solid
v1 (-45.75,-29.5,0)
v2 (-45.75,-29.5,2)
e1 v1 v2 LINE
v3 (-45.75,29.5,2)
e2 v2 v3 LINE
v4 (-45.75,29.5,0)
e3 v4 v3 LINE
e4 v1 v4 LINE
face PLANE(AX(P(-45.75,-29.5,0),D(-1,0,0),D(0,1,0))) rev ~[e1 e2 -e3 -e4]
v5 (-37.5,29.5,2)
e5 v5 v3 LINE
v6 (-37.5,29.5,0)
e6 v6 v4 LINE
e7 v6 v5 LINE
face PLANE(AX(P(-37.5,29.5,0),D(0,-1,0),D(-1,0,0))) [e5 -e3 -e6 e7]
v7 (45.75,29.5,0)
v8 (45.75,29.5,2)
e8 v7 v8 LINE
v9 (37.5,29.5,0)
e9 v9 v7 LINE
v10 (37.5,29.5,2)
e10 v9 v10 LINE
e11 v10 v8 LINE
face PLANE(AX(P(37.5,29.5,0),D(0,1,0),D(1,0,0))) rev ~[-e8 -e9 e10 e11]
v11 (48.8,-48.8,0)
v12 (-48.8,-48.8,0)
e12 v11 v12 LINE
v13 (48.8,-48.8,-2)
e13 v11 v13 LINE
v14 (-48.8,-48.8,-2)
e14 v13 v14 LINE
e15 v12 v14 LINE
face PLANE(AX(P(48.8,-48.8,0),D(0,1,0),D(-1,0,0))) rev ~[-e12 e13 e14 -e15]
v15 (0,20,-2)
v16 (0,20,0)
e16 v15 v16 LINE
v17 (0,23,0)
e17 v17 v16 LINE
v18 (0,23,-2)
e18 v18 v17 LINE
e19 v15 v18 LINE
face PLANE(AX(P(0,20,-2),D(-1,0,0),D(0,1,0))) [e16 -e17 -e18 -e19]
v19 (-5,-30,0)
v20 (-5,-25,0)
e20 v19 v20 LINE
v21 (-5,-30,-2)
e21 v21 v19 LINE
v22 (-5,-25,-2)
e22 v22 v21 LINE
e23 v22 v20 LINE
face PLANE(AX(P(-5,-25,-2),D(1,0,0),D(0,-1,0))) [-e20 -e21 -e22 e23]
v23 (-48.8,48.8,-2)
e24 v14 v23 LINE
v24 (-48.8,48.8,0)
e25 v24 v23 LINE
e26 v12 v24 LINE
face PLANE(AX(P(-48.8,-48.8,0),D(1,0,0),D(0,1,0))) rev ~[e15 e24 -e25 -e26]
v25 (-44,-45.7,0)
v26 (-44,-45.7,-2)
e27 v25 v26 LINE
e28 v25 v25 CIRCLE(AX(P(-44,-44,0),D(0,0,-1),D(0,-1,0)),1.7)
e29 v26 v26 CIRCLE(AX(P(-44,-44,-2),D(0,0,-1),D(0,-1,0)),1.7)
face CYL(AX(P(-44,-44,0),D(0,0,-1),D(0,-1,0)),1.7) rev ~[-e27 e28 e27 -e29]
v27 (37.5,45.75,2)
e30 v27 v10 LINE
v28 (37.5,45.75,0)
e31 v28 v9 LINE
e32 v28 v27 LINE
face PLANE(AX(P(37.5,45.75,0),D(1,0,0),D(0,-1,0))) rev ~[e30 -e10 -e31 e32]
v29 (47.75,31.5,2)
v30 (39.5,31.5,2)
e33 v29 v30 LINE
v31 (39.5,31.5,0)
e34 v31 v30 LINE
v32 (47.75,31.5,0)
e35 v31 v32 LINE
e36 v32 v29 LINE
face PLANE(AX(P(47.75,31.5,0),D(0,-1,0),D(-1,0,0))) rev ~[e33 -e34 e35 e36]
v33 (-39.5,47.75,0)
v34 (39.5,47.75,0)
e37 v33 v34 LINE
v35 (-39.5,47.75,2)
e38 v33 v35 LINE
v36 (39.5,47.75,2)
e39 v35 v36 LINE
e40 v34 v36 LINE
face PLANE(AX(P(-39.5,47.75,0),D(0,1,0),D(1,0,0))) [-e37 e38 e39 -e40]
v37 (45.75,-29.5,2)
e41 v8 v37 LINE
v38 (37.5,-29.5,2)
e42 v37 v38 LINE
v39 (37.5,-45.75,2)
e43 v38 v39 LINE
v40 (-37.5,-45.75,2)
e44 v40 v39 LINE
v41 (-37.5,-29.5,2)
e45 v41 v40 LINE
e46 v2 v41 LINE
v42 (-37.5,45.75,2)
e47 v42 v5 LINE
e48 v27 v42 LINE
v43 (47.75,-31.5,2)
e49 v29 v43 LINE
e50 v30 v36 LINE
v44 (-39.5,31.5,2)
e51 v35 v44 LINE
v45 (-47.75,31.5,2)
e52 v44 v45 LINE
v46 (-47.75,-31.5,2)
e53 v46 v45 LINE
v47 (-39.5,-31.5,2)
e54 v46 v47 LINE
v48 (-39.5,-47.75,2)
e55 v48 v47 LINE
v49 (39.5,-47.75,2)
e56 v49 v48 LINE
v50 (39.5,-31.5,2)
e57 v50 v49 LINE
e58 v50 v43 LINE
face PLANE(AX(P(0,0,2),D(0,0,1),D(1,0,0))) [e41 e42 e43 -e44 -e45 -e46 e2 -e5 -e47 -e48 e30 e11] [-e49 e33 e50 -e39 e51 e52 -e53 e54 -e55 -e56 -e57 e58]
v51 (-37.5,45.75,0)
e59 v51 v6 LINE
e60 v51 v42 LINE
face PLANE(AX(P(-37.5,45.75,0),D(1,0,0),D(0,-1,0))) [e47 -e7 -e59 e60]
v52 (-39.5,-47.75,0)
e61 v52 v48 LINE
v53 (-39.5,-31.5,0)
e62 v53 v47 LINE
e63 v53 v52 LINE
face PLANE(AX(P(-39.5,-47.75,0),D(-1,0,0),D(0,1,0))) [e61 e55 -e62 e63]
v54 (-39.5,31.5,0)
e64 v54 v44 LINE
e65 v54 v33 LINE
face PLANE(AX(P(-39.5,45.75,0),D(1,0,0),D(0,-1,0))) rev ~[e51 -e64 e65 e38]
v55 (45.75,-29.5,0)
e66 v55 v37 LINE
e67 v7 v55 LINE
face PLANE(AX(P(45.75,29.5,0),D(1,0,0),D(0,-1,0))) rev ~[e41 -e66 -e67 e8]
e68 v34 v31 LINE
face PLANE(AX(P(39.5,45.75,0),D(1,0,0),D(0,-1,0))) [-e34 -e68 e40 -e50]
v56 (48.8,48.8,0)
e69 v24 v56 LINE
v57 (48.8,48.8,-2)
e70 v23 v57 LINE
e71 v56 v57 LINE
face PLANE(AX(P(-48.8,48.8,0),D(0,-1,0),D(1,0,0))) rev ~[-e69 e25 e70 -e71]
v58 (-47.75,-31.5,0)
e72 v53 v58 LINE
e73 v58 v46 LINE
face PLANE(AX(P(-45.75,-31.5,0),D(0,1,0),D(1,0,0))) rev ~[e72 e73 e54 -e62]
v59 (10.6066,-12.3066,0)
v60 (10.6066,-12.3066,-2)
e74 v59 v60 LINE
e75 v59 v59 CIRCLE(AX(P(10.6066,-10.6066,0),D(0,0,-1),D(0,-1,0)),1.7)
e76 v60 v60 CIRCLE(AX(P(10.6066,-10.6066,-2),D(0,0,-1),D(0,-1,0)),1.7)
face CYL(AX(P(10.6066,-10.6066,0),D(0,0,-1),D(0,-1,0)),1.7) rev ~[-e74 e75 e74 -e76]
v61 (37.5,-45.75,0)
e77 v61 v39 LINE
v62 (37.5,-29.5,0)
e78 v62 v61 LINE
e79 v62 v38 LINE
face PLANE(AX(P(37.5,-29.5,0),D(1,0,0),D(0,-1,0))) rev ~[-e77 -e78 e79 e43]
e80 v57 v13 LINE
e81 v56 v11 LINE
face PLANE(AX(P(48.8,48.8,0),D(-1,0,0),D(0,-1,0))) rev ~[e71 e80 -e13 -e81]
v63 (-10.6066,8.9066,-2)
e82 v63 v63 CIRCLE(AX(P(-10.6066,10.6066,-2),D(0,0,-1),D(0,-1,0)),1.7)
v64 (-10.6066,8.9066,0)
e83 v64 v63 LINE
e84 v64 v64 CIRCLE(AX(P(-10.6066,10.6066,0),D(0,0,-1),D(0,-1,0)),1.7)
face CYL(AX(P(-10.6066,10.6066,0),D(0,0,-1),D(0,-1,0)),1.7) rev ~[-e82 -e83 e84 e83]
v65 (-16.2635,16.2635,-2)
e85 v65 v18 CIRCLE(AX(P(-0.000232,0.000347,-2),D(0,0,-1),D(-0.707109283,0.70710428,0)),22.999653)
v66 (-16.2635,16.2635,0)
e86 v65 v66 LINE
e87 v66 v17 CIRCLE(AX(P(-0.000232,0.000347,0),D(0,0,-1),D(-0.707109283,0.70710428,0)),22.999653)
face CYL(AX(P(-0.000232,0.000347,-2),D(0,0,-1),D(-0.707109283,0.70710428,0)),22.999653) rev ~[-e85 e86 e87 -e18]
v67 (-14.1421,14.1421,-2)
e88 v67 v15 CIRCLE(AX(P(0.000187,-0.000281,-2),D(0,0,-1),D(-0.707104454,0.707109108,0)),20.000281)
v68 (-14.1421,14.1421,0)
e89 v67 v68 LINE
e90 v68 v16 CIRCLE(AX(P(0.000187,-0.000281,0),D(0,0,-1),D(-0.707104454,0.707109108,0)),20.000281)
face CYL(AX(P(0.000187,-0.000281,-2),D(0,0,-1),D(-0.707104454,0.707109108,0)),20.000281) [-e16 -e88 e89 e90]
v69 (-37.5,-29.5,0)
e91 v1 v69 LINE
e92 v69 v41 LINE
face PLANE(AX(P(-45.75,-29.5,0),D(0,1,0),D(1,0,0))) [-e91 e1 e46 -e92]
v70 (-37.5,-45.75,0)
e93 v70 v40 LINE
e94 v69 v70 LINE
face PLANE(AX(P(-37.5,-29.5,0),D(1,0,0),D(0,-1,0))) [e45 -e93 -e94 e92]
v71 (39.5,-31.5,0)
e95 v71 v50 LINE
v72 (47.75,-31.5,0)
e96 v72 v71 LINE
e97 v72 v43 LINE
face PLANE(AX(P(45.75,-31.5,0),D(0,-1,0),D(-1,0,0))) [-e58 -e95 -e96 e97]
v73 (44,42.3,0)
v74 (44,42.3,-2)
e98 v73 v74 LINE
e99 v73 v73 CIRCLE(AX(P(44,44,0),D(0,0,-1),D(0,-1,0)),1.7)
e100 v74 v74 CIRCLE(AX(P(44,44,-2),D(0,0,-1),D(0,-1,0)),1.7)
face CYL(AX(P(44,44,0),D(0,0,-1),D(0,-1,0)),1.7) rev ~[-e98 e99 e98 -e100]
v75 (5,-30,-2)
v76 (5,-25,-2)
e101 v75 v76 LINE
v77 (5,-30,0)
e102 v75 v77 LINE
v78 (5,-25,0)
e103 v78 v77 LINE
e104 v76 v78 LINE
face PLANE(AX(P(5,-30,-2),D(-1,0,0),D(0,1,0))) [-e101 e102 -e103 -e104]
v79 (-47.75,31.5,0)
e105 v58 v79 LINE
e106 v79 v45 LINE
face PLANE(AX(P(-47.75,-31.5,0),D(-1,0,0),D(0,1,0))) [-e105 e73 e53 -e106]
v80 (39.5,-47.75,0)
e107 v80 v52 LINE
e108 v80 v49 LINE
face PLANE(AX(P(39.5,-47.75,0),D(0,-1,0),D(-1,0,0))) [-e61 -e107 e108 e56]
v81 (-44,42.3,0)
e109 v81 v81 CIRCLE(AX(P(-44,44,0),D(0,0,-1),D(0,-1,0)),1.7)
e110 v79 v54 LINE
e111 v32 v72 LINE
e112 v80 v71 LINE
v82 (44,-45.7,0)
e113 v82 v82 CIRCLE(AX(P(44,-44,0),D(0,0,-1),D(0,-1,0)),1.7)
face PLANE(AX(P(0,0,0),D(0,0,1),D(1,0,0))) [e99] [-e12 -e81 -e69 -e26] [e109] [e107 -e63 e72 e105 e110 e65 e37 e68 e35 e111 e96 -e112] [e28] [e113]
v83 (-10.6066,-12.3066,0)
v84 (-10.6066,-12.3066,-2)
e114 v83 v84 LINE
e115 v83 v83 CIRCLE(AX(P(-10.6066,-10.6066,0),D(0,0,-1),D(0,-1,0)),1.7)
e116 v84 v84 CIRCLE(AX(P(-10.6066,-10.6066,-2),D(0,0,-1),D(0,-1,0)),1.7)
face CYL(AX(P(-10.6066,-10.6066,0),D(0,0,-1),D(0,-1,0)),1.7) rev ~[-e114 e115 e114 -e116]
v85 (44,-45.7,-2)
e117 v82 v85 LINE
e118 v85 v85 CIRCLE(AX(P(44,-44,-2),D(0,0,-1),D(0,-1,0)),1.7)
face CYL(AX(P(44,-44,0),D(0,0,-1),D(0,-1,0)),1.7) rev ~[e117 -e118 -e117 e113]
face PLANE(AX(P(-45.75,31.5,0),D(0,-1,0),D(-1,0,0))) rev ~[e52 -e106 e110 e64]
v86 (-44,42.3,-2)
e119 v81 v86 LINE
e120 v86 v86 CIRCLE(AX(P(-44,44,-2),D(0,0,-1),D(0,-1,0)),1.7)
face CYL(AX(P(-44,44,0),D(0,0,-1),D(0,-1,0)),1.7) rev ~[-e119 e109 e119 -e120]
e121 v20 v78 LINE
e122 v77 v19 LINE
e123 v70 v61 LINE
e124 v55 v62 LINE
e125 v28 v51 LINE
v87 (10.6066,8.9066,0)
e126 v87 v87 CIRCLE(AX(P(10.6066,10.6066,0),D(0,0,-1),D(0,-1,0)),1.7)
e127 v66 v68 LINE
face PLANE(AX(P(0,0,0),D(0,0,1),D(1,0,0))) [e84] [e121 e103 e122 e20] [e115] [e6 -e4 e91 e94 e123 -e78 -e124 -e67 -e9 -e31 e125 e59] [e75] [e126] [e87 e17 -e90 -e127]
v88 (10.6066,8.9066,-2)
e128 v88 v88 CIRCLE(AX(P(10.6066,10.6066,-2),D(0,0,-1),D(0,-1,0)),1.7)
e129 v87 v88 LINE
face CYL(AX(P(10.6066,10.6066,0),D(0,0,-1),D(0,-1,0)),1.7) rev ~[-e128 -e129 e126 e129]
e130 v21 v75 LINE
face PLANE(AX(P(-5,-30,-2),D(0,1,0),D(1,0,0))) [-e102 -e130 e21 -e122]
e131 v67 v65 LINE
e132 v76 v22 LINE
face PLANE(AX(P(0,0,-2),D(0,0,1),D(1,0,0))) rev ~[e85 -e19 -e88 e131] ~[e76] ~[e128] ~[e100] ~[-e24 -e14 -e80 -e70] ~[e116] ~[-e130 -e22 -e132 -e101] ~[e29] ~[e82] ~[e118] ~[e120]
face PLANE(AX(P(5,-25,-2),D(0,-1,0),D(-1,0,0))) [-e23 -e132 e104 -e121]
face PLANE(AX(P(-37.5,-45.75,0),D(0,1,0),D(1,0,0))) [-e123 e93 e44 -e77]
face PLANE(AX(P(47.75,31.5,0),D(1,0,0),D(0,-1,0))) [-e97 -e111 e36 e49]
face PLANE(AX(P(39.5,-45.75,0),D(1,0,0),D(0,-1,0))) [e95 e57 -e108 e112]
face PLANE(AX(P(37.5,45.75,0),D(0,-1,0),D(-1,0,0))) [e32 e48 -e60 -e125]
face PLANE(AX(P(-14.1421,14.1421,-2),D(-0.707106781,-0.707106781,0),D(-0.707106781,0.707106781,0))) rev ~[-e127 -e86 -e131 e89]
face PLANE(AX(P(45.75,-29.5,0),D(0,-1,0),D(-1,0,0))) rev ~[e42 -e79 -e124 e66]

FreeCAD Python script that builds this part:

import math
import FreeCAD as App
import Part
import Sketcher

V = App.Vector
Q = App.Units.Quantity


def add_polygon(sketch, points):
    """Adds a closed chain of lines whose ends are joined by coincident constraints."""
    first, n = sketch.GeometryCount, len(points)
    for a, b in zip(points, points[1:] + points[:1]):
        sketch.addGeometry(Part.LineSegment(App.Vector(*a, 0), App.Vector(*b, 0)), False)
    for i in range(n):
        sketch.addConstraint(Sketcher.Constraint("Coincident", first + i, 2, first + (i + 1) % n, 1))

doc = App.newDocument("Part")
body = doc.addObject("PartDesign::Body", "Body")

# Sketch on XY plane
sketch1 = body.newObject("Sketcher::SketchObject", "Sketch")
sketch1.AttachmentSupport = (doc.getObject("XY_Plane"), [""])
sketch1.MapMode = "FlatFace"
add_polygon(sketch1, [(-48.8, -48.8), (48.8, -48.8), (48.8, 48.8), (-48.8, 48.8)])  # lines 0-3
sketch1.addConstraint([
    Sketcher.Constraint("Horizontal", 0),
    Sketcher.Constraint("Vertical", 1),
    Sketcher.Constraint("Horizontal", 2),
    Sketcher.Constraint("Vertical", 3),
    Sketcher.Constraint("Symmetric", 0, 2, 2, 2, -1, 1),
    Sketcher.Constraint("Equal", 2, 1),
    Sketcher.Constraint("DistanceX", 0, 1, 0, 2, Q("97.6 mm")),
])
pad1 = body.newObject("PartDesign::Pad", "Pad")
pad1.Profile = sketch1
pad1.Length = 2
pad1.Reversed = True

# Sketch on XY plane
sketch2 = body.newObject("Sketcher::SketchObject", "Sketch001")
sketch2.AttachmentSupport = (doc.getObject("XY_Plane"), [""])
sketch2.MapMode = "FlatFace"
sketch2.addGeometry([
    Part.Circle(V(-10.6066, 10.6066, 0), V(0, 0, 1), 1.7),  # 0
    Part.Circle(V(10.6066, 10.6066, 0), V(0, 0, 1), 1.7),  # 1
    Part.Circle(V(-10.6066, -10.6066, 0), V(0, 0, 1), 1.7),  # 2
    Part.Circle(V(10.6066, -10.6066, 0), V(0, 0, 1), 1.7),  # 3
    Part.Circle(V(-44, 44, 0), V(0, 0, 1), 1.7),  # 4
    Part.Circle(V(44, 44, 0), V(0, 0, 1), 1.7),  # 5
    Part.Circle(V(44, -44, 0), V(0, 0, 1), 1.7),  # 6
    Part.Circle(V(-44, -44, 0), V(0, 0, 1), 1.7),  # 7
], False)
sketch2.addConstraint([
    Sketcher.Constraint("Equal", 0, 1),
    Sketcher.Constraint("Equal", 1, 2),
    Sketcher.Constraint("Equal", 2, 3),
    Sketcher.Constraint("Equal", 3, 4),
    Sketcher.Constraint("Equal", 4, 5),
    Sketcher.Constraint("Equal", 5, 6),
    Sketcher.Constraint("Equal", 6, 7),
    Sketcher.Constraint("Symmetric", 1, 3, 2, 3, -1, 1),
    Sketcher.Constraint("Symmetric", 0, 3, 3, 3, -1, 1),
    Sketcher.Constraint("Symmetric", 4, 3, 6, 3, -1, 1),
    Sketcher.Constraint("Symmetric", 5, 3, 7, 3, -1, 1),
    Sketcher.Constraint("Symmetric", 0, 3, 1, 3, -2),
    Sketcher.Constraint("Symmetric", 4, 3, 5, 3, -2),
    Sketcher.Constraint("Diameter", 0, Q("3.4 mm")),
    Sketcher.Constraint("DistanceX", 4, 3, -1, 1, Q("44 mm")),
    Sketcher.Constraint("DistanceY", -1, 1, 4, 3, Q("44 mm")),
    Sketcher.Constraint("DistanceX", 0, 3, -1, 1, Q("10.6066 mm")),
    Sketcher.Constraint("DistanceY", -1, 1, 0, 3, Q("10.6066 mm")),
])
doc.recompute()
hole = body.newObject("PartDesign::Hole", "Hole")
hole.Profile = sketch2
hole.ThreadType = "None"
hole.Diameter = 3.4
hole.DepthType = "ThroughAll"

# Sketch on XY plane
sketch3 = body.newObject("Sketcher::SketchObject", "Sketch002")
sketch3.AttachmentSupport = (doc.getObject("XY_Plane"), [""])
sketch3.MapMode = "FlatFace"
add_polygon(sketch3, [(-39.5, -47.75), (39.5, -47.75), (39.5, -31.5), (47.75, -31.5), (47.75, 31.5), (39.5, 31.5), (39.5, 47.75), (-39.5, 47.75), (-39.5, 31.5), (-47.75, 31.5), (-47.75, -31.5), (-39.5, -31.5)])  # lines 0-11
add_polygon(sketch3, [(37.5, -45.75), (-37.5, -45.75), (-37.5, -29.5), (-45.75, -29.5), (-45.75, 29.5), (-37.5, 29.5), (-37.5, 45.75), (37.5, 45.75), (37.5, 29.5), (45.75, 29.5), (45.75, -29.5), (37.5, -29.5)])  # lines 12-23
sketch3.addConstraint([
    Sketcher.Constraint("Horizontal", 0),
    Sketcher.Constraint("Vertical", 1),
    Sketcher.Constraint("Horizontal", 2),
    Sketcher.Constraint("Vertical", 3),
    Sketcher.Constraint("Horizontal", 4),
    Sketcher.Constraint("Vertical", 5),
    Sketcher.Constraint("Horizontal", 6),
    Sketcher.Constraint("Vertical", 7),
    Sketcher.Constraint("Horizontal", 8),
    Sketcher.Constraint("Vertical", 9),
    Sketcher.Constraint("Horizontal", 10),
    Sketcher.Constraint("Vertical", 11),
    Sketcher.Constraint("Horizontal", 12),
    Sketcher.Constraint("Vertical", 13),
    Sketcher.Constraint("Horizontal", 14),
    Sketcher.Constraint("Vertical", 15),
    Sketcher.Constraint("Horizontal", 16),
    Sketcher.Constraint("Vertical", 17),
    Sketcher.Constraint("Horizontal", 18),
    Sketcher.Constraint("Vertical", 19),
    Sketcher.Constraint("Horizontal", 20),
    Sketcher.Constraint("Vertical", 21),
    Sketcher.Constraint("Horizontal", 22),
    Sketcher.Constraint("Vertical", 23),
    Sketcher.Constraint("Symmetric", 0, 2, 6, 2, -1, 1),
    Sketcher.Constraint("Symmetric", 2, 2, 8, 2, -1, 1),
    Sketcher.Constraint("Symmetric", 4, 2, 10, 2, -1, 1),
    Sketcher.Constraint("Symmetric", 12, 2, 18, 2, -1, 1),
    Sketcher.Constraint("Symmetric", 14, 2, 20, 2, -1, 1),
    Sketcher.Constraint("Symmetric", 16, 2, 22, 2, -1, 1),
    Sketcher.Constraint("Symmetric", 4, 2, 7, 2, -2),
    Sketcher.Constraint("Symmetric", 16, 2, 19, 2, -2),
    Sketcher.Constraint("Equal", 10, 14),
    Sketcher.Constraint("Equal", 11, 13),
    Sketcher.Constraint("DistanceX", 11, 2, 12, 2, Q("2 mm")),
    Sketcher.Constraint("DistanceY", 11, 2, 12, 2, Q("2 mm")),
    Sketcher.Constraint("DistanceY", 0, 2, 5, 2, Q("95.5 mm")),
    Sketcher.Constraint("DistanceX", 8, 2, 3, 2, Q("95.5 mm")),
    Sketcher.Constraint("DistanceX", 0, 1, 0, 2, Q("79 mm")),
    Sketcher.Constraint("DistanceY", 3, 1, 3, 2, Q("63 mm")),
])
pad2 = body.newObject("PartDesign::Pad", "Pad001")
pad2.Profile = sketch3
pad2.Length = 2

# Sketch on XY plane
sketch4 = body.newObject("Sketcher::SketchObject", "Sketch003")
sketch4.AttachmentSupport = (doc.getObject("XY_Plane"), [""])
sketch4.MapMode = "FlatFace"
sketch4.AttachmentOffset = App.Placement(V(0, 0, -2), App.Rotation())
sketch4.addGeometry(Part.LineSegment(V(0, 23, 0), V(0, 20, 0)), False)  # 0
sketch4.addGeometry(Part.ArcOfCircle(Part.Circle(V(0, 0, 0), V(0, 0, 1), 20), math.radians(90), math.radians(135)), False)  # 1
sketch4.addGeometry(Part.LineSegment(V(-14.1421, 14.1421, 0), V(-16.2635, 16.2635, 0)), False)  # 2
sketch4.addGeometry(Part.ArcOfCircle(Part.Circle(V(0, 0, 0), V(0, 0, 1), 23.000062), math.radians(90), math.radians(135)), False)  # 3
add_polygon(sketch4, [(-5, -25), (5, -25), (5, -30), (-5, -30)])  # lines 4-7
sketch4.addConstraint([
    Sketcher.Constraint("Coincident", 0, 2, 1, 1),
    Sketcher.Constraint("Coincident", 1, 2, 2, 1),
    Sketcher.Constraint("Coincident", 2, 2, 3, 2),
    Sketcher.Constraint("Coincident", 3, 1, 0, 1),
    Sketcher.Constraint("Vertical", 0),
    Sketcher.Constraint("Horizontal", 4),
    Sketcher.Constraint("Vertical", 5),
    Sketcher.Constraint("Horizontal", 6),
    Sketcher.Constraint("Vertical", 7),
    Sketcher.Constraint("Coincident", 1, 3, -1, 1),
    Sketcher.Constraint("Coincident", 3, 3, -1, 1),
    Sketcher.Constraint("PointOnObject", 0, 2, -2),
    Sketcher.Constraint("Radius", 1, Q("20 mm")),
    Sketcher.Constraint("DistanceX", 4, 1, 4, 2, Q("10 mm")),
    Sketcher.Constraint("DistanceY", 0, 2, 0, 1, Q("3 mm")),
    Sketcher.Constraint("DistanceY", 5, 2, 5, 1, Q("5 mm")),
    Sketcher.Constraint("DistanceX", -1, 1, 4, 2, Q("5 mm")),
    Sketcher.Constraint("DistanceY", 4, 2, -1, 1, Q("25 mm")),
    Sketcher.Constraint("Angle", 2, Q("135 deg")),
    Sketcher.Constraint("DistanceY", 1, 2, 3, 1, Q("8.858 mm")),
])
pocket1 = body.newObject("PartDesign::Pocket", "Pocket")
pocket1.Profile = sketch4
pocket1.Type = "ThroughAll"
pocket1.Reversed = True

doc.recompute()
